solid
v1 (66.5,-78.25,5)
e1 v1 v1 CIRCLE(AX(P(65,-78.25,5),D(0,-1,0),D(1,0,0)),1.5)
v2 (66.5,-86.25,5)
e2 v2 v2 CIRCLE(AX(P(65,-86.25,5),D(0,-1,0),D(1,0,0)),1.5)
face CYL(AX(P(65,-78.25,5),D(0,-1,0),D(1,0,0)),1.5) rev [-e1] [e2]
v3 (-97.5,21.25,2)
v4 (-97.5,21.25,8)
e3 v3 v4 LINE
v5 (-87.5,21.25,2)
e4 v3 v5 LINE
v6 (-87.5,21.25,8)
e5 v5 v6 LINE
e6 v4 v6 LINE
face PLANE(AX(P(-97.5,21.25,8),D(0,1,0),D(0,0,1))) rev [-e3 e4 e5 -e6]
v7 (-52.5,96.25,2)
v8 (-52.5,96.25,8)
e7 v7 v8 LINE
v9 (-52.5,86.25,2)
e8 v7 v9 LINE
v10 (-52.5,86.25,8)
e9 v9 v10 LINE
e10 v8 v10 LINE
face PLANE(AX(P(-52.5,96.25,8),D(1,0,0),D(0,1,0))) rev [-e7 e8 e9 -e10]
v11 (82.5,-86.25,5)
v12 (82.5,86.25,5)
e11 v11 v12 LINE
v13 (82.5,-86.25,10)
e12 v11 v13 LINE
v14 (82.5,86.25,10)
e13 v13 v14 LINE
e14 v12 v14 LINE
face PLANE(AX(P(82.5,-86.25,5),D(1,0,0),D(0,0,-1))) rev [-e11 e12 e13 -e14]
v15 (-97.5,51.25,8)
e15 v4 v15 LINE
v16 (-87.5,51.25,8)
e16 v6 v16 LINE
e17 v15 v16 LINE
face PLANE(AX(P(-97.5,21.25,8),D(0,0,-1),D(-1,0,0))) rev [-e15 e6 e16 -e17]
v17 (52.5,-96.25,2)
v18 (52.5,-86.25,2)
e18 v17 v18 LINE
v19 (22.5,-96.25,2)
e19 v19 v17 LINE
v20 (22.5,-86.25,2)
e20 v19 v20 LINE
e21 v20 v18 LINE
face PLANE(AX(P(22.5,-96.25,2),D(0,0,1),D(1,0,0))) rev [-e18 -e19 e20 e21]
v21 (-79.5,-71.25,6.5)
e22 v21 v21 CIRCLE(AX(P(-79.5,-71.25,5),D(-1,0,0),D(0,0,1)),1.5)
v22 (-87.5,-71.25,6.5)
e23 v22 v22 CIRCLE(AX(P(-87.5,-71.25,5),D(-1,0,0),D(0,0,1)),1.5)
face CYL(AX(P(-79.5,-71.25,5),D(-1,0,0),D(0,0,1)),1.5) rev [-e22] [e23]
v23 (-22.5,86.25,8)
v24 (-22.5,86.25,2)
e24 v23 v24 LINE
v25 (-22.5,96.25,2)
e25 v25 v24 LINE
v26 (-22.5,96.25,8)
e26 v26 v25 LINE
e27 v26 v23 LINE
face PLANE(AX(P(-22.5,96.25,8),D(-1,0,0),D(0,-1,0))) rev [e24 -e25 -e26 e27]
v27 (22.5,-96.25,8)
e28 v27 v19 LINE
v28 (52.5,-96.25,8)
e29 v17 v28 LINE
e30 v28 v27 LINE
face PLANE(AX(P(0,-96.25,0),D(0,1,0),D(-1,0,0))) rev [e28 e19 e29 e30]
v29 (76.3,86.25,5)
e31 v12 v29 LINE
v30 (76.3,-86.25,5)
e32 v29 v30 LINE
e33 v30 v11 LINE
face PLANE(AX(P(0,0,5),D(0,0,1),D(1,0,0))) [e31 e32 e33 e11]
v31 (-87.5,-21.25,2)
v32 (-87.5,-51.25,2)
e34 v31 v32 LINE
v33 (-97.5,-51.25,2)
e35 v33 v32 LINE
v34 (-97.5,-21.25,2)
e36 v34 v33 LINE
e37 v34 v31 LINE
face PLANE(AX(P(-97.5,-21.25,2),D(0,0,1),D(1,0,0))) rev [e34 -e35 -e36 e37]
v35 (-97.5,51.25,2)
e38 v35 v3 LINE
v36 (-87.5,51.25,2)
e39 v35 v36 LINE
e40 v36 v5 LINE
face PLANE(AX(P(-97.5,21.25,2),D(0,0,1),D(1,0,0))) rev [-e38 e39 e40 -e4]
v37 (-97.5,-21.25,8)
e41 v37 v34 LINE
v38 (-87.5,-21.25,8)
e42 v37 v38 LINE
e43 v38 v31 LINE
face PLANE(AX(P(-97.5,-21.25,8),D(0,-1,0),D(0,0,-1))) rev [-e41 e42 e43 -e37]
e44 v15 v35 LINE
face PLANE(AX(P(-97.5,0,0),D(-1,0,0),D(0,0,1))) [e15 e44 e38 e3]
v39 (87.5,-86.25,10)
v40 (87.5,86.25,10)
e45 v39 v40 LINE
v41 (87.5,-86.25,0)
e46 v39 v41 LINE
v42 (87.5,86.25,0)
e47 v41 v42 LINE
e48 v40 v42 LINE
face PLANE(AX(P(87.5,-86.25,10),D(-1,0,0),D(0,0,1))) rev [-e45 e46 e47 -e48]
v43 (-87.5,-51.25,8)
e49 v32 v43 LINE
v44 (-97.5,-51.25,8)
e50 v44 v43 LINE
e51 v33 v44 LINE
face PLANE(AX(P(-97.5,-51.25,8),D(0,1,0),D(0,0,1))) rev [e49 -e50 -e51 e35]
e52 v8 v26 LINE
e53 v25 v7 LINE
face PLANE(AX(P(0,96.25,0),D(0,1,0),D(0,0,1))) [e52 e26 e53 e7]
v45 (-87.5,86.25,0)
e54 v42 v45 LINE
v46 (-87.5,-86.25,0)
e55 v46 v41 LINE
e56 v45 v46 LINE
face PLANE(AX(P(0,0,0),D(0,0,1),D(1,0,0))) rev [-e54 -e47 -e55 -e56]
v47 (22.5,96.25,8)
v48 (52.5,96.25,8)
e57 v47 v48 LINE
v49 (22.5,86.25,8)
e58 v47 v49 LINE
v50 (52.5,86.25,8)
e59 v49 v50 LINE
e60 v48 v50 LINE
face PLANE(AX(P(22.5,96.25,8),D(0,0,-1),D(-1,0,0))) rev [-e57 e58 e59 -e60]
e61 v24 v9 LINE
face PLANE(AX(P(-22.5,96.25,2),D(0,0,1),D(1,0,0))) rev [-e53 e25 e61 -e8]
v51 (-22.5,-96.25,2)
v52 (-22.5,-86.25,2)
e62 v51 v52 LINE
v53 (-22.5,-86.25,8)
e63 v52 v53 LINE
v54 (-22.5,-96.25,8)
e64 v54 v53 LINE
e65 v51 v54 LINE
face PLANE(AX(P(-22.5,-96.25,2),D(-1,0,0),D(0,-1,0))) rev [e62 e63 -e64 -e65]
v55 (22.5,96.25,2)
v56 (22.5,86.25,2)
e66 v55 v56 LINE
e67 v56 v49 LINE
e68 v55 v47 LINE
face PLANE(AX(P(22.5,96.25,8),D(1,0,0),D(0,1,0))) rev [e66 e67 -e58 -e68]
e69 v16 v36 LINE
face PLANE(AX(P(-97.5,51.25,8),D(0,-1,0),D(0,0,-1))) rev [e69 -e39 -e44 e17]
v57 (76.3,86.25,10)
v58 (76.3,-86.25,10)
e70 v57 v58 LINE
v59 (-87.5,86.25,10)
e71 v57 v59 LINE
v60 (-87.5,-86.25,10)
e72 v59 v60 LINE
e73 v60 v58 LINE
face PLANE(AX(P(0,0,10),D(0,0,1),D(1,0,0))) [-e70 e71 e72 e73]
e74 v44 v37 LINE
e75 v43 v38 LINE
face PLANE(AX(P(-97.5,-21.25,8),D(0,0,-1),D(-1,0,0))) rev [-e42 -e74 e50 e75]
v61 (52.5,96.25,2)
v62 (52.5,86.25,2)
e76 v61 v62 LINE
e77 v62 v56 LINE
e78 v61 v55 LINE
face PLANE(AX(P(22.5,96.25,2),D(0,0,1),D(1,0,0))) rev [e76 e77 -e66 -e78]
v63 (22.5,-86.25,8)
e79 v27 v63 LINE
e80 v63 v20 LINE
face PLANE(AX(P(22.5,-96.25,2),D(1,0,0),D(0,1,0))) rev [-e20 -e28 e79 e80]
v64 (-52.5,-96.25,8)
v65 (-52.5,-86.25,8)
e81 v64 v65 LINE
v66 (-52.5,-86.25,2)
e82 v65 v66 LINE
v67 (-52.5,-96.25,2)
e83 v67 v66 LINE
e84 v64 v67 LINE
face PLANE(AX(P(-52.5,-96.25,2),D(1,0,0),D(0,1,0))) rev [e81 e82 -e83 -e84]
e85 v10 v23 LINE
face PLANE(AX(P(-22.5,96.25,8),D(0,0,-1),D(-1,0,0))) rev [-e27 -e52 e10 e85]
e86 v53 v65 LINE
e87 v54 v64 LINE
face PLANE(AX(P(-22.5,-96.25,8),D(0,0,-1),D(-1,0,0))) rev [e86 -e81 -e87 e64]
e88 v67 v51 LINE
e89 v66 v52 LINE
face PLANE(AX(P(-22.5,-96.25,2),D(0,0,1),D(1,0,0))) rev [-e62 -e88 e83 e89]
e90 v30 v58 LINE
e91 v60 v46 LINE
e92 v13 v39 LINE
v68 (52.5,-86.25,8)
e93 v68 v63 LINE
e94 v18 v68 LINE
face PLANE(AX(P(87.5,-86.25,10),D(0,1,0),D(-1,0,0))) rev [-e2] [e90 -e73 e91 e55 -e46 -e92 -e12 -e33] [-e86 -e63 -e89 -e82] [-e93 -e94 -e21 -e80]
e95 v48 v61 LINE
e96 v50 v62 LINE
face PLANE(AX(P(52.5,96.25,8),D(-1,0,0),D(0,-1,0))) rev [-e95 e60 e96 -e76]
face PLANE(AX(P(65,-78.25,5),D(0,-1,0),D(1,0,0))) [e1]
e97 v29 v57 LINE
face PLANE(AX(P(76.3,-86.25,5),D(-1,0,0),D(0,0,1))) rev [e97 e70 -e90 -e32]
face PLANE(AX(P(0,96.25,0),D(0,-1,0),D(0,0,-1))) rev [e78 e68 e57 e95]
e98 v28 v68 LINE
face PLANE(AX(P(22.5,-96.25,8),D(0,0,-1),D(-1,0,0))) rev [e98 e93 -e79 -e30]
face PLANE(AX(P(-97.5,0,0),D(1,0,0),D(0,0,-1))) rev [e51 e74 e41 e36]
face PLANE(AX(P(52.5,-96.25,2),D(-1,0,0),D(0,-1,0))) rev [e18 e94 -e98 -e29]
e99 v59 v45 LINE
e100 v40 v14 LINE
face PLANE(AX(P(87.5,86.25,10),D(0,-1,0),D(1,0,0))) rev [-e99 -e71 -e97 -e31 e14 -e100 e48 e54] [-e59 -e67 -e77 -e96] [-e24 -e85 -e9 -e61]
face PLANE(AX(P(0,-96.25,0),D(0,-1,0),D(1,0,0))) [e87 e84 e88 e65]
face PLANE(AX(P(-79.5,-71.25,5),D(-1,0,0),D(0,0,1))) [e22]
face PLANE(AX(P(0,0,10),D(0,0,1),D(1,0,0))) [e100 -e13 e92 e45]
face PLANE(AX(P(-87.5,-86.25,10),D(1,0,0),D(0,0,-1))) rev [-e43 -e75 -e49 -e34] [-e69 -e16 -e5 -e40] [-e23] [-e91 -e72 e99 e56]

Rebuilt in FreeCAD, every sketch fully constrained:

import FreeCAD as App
import Part
import Sketcher


def add_polygon(sketch, points):
    """Adds a closed chain of lines whose ends are joined by coincident constraints."""
    first, n = sketch.GeometryCount, len(points)
    for a, b in zip(points, points[1:] + points[:1]):
        sketch.addGeometry(Part.LineSegment(App.Vector(*a, 0), App.Vector(*b, 0)), False)
    for i in range(n):
        sketch.addConstraint(Sketcher.Constraint("Coincident", first + i, 2, first + (i + 1) % n, 1))

doc = App.newDocument("Part")
body = doc.addObject("PartDesign::Body", "Body")

# Sketch on XY plane
sketch1 = body.newObject("Sketcher::SketchObject", "Sketch")
sketch1.AttachmentSupport = (doc.getObject("XY_Plane"), [""])
sketch1.MapMode = "FlatFace"
add_polygon(sketch1, [(-88, 86), (-88, -86), (88, -86), (88, 86)])  # lines 0-3
sketch1.addConstraint([
    Sketcher.Constraint("Vertical", 0),
    Sketcher.Constraint("Horizontal", 1),
    Sketcher.Constraint("Vertical", 2),
    Sketcher.Constraint("Horizontal", 3),
    Sketcher.Constraint("Symmetric", 0, 2, 2, 2, -1, 1),
    Sketcher.Constraint("DistanceX", 1, 1, 1, 2, 175.0),
    Sketcher.Constraint("DistanceY", 0, 2, 0, 1, 172.5),
])
pad1 = body.newObject("PartDesign::Pad", "Pad")
pad1.Profile = sketch1
pad1.Length = 10

# Sketch on XZ plane
sketch2 = body.newObject("Sketcher::SketchObject", "Sketch001")
sketch2.AttachmentSupport = (doc.getObject("XZ_Plane"), [""])
sketch2.MapMode = "FlatFace"
sketch2.AttachmentOffset = App.Placement(App.Vector(0, 0, -86.25), App.Rotation())
add_polygon(sketch2, [(-52, 2), (-52, 8), (-22, 8), (-22, 2)])  # lines 0-3
add_polygon(sketch2, [(22, 2), (22, 8), (52, 8), (52, 2)])  # lines 4-7
sketch2.addConstraint([
    Sketcher.Constraint("Vertical", 0),
    Sketcher.Constraint("Horizontal", 1),
    Sketcher.Constraint("Vertical", 2),
    Sketcher.Constraint("Horizontal", 3),
    Sketcher.Constraint("Vertical", 4),
    Sketcher.Constraint("Horizontal", 5),
    Sketcher.Constraint("Vertical", 6),
    Sketcher.Constraint("Horizontal", 7),
    Sketcher.Constraint("Symmetric", 1, 2, 4, 2, -2),
    Sketcher.Constraint("Symmetric", 3, 2, 6, 2, -2),
    Sketcher.Constraint("DistanceX", 1, 1, 1, 2, 30.0),
    Sketcher.Constraint("DistanceY", 0, 1, 0, 2, 6.0),
    Sketcher.Constraint("DistanceY", -1, 1, 0, 2, 8.0),
    Sketcher.Constraint("DistanceX", 1, 2, 4, 2, 45.0),
])
pad2 = body.newObject("PartDesign::Pad", "Pad001")
pad2.Profile = sketch2
pad2.Length = 10
pad2.Reversed = True

# Sketch on YZ plane
sketch3 = body.newObject("Sketcher::SketchObject", "Sketch002")
sketch3.AttachmentSupport = (doc.getObject("YZ_Plane"), [""])
sketch3.MapMode = "FlatFace"
sketch3.AttachmentOffset = App.Placement(App.Vector(0, 0, -87.5), App.Rotation())
add_polygon(sketch3, [(51, 2), (21, 2), (21, 8), (51, 8)])  # lines 0-3
add_polygon(sketch3, [(-21, 2), (-51, 2), (-51, 8), (-21, 8)])  # lines 4-7
sketch3.addConstraint([
    Sketcher.Constraint("Horizontal", 0),
    Sketcher.Constraint("Vertical", 1),
    Sketcher.Constraint("Horizontal", 2),
    Sketcher.Constraint("Vertical", 3),
    Sketcher.Constraint("Horizontal", 4),
    Sketcher.Constraint("Vertical", 5),
    Sketcher.Constraint("Horizontal", 6),
    Sketcher.Constraint("Vertical", 7),
    Sketcher.Constraint("Symmetric", 3, 2, 4, 2, -2),
    Sketcher.Constraint("Symmetric", 1, 2, 6, 2, -2),
    Sketcher.Constraint("DistanceX", 0, 2, 0, 1, 30.0),
    Sketcher.Constraint("DistanceY", 1, 1, 1, 2, 6.0),
    Sketcher.Constraint("DistanceY", -1, 1, 0, 2, 2.0),
    Sketcher.Constraint("DistanceX", 4, 2, 0, 2, 72.5),
])
pad3 = body.newObject("PartDesign::Pad", "Pad002")
pad3.Profile = sketch3
pad3.Length = 10
pad3.Reversed = True

# Sketch on XZ plane
sketch4 = body.newObject("Sketcher::SketchObject", "Sketch003")
sketch4.AttachmentSupport = (doc.getObject("XZ_Plane"), [""])
sketch4.MapMode = "FlatFace"
sketch4.AttachmentOffset = App.Placement(App.Vector(0, 0, 86.25), App.Rotation())
add_polygon(sketch4, [(-52, 8), (-52, 2), (-22, 2), (-22, 8)])  # lines 0-3
add_polygon(sketch4, [(22, 8), (22, 2), (52, 2), (52, 8)])  # lines 4-7
sketch4.addConstraint([
    Sketcher.Constraint("Vertical", 0),
    Sketcher.Constraint("Horizontal", 1),
    Sketcher.Constraint("Vertical", 2),
    Sketcher.Constraint("Horizontal", 3),
    Sketcher.Constraint("Vertical", 4),
    Sketcher.Constraint("Horizontal", 5),
    Sketcher.Constraint("Vertical", 6),
    Sketcher.Constraint("Horizontal", 7),
    Sketcher.Constraint("Symmetric", 1, 2, 4, 2, -2),
    Sketcher.Constraint("Symmetric", 3, 2, 6, 2, -2),
    Sketcher.Constraint("DistanceX", 1, 1, 1, 2, 30.0),
    Sketcher.Constraint("DistanceY", 0, 2, 0, 1, 6.0),
    Sketcher.Constraint("DistanceY", -1, 1, 0, 2, 2.0),
    Sketcher.Constraint("DistanceX", 1, 2, 4, 2, 45.0),
])
pad4 = body.newObject("PartDesign::Pad", "Pad003")
pad4.Profile = sketch4
pad4.Length = 10

# Sketch on XY plane
sketch5 = body.newObject("Sketcher::SketchObject", "Sketch004")
sketch5.AttachmentSupport = (doc.getObject("XY_Plane"), [""])
sketch5.MapMode = "FlatFace"
sketch5.AttachmentOffset = App.Placement(App.Vector(0, 0, 10), App.Rotation())
add_polygon(sketch5, [(76, 86), (76, -86), (82, -86), (82, 86)])  # lines 0-3
sketch5.addConstraint([
    Sketcher.Constraint("Vertical", 0),
    Sketcher.Constraint("Horizontal", 1),
    Sketcher.Constraint("Vertical", 2),
    Sketcher.Constraint("Horizontal", 3),
    Sketcher.Constraint("DistanceX", 1, 1, 1, 2, 6.2),
    Sketcher.Constraint("DistanceY", 0, 2, 0, 1, 172.5),
    Sketcher.Constraint("DistanceX", -1, 1, 0, 2, 76.3),
    Sketcher.Constraint("DistanceY", 0, 2, -1, 1, 86.25),
])
pocket1 = body.newObject("PartDesign::Pocket", "Pocket")
pocket1.Profile = sketch5
pocket1.Length = 5

# Sketch on YZ plane
sketch6 = body.newObject("Sketcher::SketchObject", "Sketch005")
sketch6.AttachmentSupport = (doc.getObject("YZ_Plane"), [""])
sketch6.MapMode = "FlatFace"
sketch6.AttachmentOffset = App.Placement(App.Vector(0, 0, -87.5), App.Rotation())
sketch6.addGeometry(Part.Circle(App.Vector(-71.2, 5, 0), App.Vector(0, 0, 1), 1.5), False)
sketch6.addConstraint([
    Sketcher.Constraint("Diameter", 0, 3.0),
    Sketcher.Constraint("DistanceY", -1, 1, 0, 3, 5.0),
    Sketcher.Constraint("DistanceX", 0, 3, -1, 1, 71.25),
])
pocket2 = body.newObject("PartDesign::Pocket", "Pocket001")
pocket2.Profile = sketch6
pocket2.Length = 8
pocket2.Reversed = True

# Sketch on XZ plane
sketch7 = body.newObject("Sketcher::SketchObject", "Sketch006")
sketch7.AttachmentSupport = (doc.getObject("XZ_Plane"), [""])
sketch7.MapMode = "FlatFace"
sketch7.AttachmentOffset = App.Placement(App.Vector(0, 0, 86.25), App.Rotation())
sketch7.addGeometry(Part.Circle(App.Vector(65, 5, 0), App.Vector(0, 0, 1), 1.5), False)
sketch7.addConstraint([
    Sketcher.Constraint("Diameter", 0, 3.0),
    Sketcher.Constraint("DistanceX", -1, 1, 0, 3, 65.0),
    Sketcher.Constraint("DistanceY", -1, 1, 0, 3, 5.0),
])
pocket3 = body.newObject("PartDesign::Pocket", "Pocket002")
pocket3.Profile = sketch7
pocket3.Length = 8

doc.recompute()
